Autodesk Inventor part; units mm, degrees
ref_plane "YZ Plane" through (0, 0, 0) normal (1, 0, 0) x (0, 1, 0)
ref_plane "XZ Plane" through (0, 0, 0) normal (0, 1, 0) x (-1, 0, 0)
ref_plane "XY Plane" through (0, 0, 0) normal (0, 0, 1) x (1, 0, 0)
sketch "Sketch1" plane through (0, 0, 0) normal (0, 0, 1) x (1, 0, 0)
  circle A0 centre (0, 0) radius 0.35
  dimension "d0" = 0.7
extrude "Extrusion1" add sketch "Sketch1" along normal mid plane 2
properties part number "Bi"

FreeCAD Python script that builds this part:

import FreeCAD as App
import Part
import Sketcher

V = App.Vector
Q = App.Units.Quantity

doc = App.newDocument("Part")
body = doc.addObject("PartDesign::Body", "Body")

# Sketch on XY plane
sketch1 = body.newObject("Sketcher::SketchObject", "Sketch")
sketch1.AttachmentSupport = (doc.getObject("XY_Plane"), [""])
sketch1.MapMode = "FlatFace"
sketch1.addGeometry(Part.Circle(V(0, 0, 0), V(0, 0, 1), 0.35), False)
sketch1.addConstraint(Sketcher.Constraint("Coincident", 0, 3, -1, 1))
sketch1.addConstraint(Sketcher.Constraint("Diameter", 0, Q("0.7 mm")))
pad1 = body.newObject("PartDesign::Pad", "Pad")
pad1.Profile = sketch1
pad1.Length = 2
pad1.Midplane = True

doc.recompute()
